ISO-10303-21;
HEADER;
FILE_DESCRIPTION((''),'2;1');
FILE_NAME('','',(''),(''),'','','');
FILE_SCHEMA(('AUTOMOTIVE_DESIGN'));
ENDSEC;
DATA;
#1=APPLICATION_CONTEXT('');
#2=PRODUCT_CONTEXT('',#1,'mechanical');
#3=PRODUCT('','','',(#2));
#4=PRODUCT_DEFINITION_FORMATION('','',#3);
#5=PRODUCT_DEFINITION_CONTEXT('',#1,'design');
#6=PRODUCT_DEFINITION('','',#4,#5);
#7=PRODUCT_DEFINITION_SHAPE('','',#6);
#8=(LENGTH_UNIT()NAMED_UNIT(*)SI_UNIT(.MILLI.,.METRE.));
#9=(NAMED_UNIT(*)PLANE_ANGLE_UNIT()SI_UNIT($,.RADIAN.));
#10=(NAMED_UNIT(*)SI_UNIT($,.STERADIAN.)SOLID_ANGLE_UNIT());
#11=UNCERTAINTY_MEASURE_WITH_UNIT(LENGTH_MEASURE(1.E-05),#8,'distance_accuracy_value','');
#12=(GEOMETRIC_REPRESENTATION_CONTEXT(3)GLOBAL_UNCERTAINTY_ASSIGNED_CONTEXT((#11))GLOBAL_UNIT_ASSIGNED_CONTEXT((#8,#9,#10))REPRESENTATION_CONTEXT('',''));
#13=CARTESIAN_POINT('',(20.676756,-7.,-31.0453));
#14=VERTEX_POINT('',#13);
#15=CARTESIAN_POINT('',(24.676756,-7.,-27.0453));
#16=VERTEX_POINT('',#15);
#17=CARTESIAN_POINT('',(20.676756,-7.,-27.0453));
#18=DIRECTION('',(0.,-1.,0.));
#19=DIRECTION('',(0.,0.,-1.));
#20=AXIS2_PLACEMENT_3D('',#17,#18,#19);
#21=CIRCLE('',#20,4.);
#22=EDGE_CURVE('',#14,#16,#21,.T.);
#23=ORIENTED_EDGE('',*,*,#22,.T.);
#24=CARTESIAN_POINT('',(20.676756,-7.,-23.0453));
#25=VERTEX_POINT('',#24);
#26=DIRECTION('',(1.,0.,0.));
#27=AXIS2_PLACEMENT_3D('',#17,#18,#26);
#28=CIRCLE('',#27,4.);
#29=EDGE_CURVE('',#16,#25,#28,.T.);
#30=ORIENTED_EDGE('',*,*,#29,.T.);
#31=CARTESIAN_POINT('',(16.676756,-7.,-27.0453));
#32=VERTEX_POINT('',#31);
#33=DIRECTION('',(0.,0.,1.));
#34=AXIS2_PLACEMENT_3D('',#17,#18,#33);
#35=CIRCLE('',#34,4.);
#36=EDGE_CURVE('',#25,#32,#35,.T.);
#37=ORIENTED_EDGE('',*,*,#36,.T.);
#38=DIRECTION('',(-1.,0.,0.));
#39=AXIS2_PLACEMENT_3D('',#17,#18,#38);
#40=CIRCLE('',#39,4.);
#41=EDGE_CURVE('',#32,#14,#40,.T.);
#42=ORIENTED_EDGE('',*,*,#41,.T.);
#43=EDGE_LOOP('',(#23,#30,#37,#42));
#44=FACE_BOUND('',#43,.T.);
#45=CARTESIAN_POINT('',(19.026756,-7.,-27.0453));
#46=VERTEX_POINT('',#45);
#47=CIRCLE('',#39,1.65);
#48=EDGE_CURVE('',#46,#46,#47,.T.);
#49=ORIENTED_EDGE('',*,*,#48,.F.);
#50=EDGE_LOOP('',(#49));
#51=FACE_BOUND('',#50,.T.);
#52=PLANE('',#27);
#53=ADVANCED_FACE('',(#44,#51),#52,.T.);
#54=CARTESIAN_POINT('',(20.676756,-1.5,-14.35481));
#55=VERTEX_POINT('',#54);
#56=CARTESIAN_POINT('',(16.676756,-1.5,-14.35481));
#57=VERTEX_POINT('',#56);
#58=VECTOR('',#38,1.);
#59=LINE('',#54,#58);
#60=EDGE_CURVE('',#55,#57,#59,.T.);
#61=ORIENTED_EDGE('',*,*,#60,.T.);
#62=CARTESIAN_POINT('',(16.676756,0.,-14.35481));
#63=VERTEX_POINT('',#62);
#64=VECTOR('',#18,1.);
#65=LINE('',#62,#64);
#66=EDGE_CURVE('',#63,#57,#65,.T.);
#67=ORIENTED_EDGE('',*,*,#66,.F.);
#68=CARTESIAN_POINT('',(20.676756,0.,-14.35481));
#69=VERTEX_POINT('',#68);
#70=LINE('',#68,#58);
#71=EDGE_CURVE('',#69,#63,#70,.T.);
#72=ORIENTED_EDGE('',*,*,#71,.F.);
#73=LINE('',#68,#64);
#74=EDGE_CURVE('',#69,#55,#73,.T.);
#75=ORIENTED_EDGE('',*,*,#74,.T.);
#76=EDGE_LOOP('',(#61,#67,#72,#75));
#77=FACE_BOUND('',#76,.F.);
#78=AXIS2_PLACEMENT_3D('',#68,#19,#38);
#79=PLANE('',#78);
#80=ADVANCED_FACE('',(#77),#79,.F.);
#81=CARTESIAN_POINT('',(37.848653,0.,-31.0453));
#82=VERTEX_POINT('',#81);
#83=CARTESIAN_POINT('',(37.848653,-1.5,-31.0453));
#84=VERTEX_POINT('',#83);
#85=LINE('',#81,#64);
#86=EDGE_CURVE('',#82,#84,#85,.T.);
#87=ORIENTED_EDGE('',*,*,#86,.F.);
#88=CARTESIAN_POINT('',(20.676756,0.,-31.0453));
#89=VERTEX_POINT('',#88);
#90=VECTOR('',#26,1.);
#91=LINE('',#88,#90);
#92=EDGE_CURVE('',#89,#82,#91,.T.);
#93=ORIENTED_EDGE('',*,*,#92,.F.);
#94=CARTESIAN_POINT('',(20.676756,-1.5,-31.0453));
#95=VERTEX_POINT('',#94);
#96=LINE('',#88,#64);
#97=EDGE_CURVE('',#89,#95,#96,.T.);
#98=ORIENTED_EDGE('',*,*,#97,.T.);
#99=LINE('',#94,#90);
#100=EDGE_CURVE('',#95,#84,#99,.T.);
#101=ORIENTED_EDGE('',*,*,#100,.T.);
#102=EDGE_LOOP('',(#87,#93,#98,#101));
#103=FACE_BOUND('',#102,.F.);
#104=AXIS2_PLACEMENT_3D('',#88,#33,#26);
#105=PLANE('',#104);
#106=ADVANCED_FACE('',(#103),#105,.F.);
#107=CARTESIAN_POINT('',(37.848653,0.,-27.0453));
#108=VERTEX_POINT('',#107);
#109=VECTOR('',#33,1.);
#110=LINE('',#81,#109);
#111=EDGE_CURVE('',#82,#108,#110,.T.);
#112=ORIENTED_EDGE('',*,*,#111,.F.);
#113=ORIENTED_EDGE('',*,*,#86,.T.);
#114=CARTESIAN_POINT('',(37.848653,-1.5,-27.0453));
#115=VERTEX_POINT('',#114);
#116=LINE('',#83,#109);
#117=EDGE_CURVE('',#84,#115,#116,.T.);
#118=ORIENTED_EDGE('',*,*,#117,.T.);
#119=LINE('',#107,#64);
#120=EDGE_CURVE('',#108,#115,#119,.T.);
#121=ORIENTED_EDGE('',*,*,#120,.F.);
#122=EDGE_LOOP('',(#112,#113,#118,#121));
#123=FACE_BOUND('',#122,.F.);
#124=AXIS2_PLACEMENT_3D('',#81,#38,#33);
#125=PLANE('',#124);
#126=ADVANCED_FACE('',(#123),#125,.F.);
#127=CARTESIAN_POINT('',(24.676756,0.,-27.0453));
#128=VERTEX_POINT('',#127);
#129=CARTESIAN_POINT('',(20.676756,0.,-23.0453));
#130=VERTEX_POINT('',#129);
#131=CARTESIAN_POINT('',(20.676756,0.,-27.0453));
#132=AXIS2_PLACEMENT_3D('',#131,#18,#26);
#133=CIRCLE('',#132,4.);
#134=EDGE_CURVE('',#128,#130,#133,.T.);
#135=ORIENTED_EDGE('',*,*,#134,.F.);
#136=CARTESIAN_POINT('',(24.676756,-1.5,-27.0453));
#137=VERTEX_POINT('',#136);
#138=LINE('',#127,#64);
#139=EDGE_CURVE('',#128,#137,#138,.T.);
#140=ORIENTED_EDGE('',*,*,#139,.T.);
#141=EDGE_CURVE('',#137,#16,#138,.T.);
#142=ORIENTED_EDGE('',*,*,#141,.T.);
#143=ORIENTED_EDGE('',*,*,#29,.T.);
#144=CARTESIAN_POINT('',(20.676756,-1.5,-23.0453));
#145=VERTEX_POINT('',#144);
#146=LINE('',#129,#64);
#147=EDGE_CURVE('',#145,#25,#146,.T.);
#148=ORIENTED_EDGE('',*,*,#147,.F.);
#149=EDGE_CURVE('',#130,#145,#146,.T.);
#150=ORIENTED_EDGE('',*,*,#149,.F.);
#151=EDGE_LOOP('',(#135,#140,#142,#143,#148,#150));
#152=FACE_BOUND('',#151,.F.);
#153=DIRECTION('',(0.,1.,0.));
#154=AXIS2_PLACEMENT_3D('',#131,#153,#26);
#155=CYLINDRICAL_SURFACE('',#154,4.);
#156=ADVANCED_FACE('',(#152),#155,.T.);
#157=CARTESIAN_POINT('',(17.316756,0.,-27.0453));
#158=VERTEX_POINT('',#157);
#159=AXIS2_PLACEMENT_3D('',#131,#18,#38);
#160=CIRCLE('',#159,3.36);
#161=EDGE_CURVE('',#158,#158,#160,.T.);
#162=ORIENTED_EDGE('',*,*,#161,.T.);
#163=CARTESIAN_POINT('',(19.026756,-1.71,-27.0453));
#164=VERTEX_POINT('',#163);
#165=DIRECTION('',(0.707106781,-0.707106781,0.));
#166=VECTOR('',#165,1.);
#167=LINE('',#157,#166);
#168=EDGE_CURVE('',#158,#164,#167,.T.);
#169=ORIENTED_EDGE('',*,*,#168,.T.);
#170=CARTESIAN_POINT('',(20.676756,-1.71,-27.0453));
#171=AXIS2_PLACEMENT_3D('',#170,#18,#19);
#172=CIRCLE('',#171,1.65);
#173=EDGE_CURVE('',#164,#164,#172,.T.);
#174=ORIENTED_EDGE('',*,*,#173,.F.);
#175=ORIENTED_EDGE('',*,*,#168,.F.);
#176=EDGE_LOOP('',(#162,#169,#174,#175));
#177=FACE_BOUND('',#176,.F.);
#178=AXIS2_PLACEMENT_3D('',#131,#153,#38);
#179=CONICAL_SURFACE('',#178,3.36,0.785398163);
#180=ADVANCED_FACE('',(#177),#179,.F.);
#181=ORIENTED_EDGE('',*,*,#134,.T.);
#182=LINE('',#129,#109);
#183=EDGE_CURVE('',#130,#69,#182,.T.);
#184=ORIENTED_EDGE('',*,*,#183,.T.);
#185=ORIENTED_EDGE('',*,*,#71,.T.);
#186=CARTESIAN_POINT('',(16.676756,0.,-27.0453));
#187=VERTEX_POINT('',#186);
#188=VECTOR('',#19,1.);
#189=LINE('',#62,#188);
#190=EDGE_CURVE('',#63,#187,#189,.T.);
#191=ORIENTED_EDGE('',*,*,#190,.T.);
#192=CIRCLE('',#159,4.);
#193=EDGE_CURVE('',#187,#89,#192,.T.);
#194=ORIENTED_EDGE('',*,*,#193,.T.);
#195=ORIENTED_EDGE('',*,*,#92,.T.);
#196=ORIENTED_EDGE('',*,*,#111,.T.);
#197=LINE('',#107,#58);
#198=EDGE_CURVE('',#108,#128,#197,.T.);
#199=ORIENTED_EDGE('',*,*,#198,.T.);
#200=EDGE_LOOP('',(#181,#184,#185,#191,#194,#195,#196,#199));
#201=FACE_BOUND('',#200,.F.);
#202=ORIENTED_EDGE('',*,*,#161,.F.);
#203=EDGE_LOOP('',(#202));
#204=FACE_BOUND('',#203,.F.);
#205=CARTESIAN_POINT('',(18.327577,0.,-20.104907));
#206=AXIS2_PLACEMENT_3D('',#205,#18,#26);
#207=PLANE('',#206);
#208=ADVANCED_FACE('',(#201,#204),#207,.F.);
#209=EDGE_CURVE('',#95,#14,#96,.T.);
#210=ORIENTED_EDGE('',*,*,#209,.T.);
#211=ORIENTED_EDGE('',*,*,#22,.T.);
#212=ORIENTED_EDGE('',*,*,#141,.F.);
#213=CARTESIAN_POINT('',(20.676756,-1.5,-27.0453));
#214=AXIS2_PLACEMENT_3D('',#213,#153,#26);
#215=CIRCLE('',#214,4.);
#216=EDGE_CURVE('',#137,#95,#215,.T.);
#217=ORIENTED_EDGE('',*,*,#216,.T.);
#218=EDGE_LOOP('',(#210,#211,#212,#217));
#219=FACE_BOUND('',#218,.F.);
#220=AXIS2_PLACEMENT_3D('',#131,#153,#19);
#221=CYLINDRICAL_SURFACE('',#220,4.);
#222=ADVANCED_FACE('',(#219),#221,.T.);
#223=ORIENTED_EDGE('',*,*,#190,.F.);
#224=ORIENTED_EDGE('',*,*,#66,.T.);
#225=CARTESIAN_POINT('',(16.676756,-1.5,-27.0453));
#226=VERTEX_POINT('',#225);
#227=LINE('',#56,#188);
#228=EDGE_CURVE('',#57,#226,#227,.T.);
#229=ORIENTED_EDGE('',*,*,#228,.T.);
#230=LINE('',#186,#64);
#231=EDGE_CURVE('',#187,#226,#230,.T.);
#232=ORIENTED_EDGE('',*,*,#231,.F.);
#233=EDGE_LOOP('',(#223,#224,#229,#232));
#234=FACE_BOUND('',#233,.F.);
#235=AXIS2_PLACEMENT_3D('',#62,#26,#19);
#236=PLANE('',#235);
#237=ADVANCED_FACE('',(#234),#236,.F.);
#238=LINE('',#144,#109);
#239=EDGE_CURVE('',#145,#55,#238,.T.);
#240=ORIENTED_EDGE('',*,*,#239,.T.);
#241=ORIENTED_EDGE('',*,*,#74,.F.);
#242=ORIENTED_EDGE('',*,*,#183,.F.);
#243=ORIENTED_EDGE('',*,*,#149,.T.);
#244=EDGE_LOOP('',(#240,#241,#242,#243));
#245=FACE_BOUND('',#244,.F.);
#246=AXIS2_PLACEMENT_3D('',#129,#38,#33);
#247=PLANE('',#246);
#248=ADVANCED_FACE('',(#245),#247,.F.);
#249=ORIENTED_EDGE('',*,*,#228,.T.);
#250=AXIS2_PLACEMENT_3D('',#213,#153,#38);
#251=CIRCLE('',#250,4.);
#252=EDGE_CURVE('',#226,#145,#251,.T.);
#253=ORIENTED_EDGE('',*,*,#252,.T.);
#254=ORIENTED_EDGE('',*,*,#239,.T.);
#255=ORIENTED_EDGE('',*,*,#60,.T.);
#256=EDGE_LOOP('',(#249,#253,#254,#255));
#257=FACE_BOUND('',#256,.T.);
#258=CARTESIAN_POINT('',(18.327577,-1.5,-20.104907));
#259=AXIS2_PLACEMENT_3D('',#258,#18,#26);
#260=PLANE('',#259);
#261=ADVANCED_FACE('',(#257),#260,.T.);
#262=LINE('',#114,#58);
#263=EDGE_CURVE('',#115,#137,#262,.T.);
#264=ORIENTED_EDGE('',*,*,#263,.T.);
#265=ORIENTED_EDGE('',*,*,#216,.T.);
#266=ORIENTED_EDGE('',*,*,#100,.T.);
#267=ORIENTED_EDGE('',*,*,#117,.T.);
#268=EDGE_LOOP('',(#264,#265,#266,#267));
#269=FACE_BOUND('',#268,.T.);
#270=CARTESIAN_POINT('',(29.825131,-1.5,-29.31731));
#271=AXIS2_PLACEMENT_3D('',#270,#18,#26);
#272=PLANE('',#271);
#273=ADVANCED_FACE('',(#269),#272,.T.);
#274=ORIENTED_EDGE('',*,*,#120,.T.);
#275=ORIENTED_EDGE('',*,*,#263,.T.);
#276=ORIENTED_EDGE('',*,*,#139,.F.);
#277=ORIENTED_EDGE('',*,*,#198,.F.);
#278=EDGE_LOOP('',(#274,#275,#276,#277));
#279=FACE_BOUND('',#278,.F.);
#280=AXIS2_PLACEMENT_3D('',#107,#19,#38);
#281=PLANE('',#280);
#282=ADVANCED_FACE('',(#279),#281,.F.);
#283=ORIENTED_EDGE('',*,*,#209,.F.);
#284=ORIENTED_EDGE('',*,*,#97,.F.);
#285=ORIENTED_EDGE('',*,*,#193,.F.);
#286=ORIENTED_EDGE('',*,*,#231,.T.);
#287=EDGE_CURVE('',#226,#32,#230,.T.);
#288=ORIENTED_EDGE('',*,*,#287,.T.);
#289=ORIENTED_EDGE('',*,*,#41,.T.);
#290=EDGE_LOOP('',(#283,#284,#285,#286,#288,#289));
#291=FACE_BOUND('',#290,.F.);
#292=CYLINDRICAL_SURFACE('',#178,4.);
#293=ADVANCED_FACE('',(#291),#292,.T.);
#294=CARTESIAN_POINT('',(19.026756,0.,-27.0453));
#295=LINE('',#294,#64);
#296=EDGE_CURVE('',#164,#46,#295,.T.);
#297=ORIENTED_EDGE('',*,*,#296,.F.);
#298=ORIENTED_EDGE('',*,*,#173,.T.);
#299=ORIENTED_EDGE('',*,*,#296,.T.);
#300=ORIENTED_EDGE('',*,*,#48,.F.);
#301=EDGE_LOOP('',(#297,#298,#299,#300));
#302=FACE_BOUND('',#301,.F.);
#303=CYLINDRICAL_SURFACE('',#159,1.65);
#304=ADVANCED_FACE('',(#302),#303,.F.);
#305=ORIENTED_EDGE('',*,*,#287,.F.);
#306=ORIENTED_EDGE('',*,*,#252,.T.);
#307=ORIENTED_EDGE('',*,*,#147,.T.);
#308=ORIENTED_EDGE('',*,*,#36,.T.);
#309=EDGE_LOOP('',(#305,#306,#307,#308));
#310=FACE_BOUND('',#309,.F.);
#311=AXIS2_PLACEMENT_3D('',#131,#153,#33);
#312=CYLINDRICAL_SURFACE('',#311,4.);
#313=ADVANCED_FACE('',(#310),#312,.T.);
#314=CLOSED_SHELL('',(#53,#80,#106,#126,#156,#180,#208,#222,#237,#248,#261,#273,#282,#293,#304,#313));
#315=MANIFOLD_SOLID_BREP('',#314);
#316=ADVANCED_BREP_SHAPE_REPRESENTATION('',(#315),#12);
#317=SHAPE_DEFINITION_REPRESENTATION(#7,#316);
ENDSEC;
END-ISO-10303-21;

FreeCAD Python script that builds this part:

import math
import FreeCAD as App
import Part
import Sketcher

V = App.Vector

doc = App.newDocument("Part")
params = doc.addObject("Spreadsheet::Sheet", "Params")
for row, (alias, value) in enumerate([
    ("sketch1_radius", "4 mm"),
    ("pad1_length", "7 mm"),
    ("sketch2_diameter", "3.3 mm"),
    ("hole_diameter", "3.3 mm"),
    ("hole_csink_diameter", "6.72 mm"),
    ("sketch3_radius", "4 mm"),
    ("pad2_length", "1.5 mm"),
], start=1):
    params.set(f"A{row}", alias)
    params.set(f"B{row}", "=" + value)
    params.setAlias(f"B{row}", alias)

body = doc.addObject("PartDesign::Body", "Body")

# Sketch on XZ plane
sketch1 = doc.addObject("Sketcher::SketchObject", "Sketch")
body.addObject(sketch1)
sketch1.AttachmentSupport = (doc.XZ_Plane, [""])
sketch1.MapMode = "FlatFace"
sketch1.addGeometry(Part.ArcOfCircle(Part.Circle(V(20.7, -27, 0), V(0, 0, 1), 4), math.radians(-90), math.radians(0)), False)
sketch1.addGeometry(Part.ArcOfCircle(Part.Circle(V(20.7, -27, 0), V(0, 0, 1), 4), math.radians(0), math.radians(90)), False)
sketch1.addGeometry(Part.ArcOfCircle(Part.Circle(V(20.7, -27, 0), V(0, 0, 1), 4), math.radians(90), math.radians(180)), False)
sketch1.addGeometry(Part.ArcOfCircle(Part.Circle(V(20.7, -27, 0), V(0, 0, 1), 4), math.radians(180), math.radians(270)), False)
sketch1.addConstraint(Sketcher.Constraint("Tangent", 0, 2, 1, 1))
sketch1.addConstraint(Sketcher.Constraint("Tangent", 1, 2, 2, 1))
sketch1.addConstraint(Sketcher.Constraint("Tangent", 2, 2, 3, 1))
sketch1.addConstraint(Sketcher.Constraint("Tangent", 3, 2, 0, 1))
sketch1.addConstraint(Sketcher.Constraint("Equal", 0, 1))
sketch1.addConstraint(Sketcher.Constraint("Horizontal", 3, 3, 0, 2))
sketch1.addConstraint(Sketcher.Constraint("Horizontal", 0, 2, 2, 2))
sketch1.addConstraint(Sketcher.Constraint("Vertical", 3, 3, 1, 2))
sketch1.addConstraint(Sketcher.Constraint("Vertical", 1, 2, 3, 2))
sketch1.addConstraint(Sketcher.Constraint("Radius", 0, 4.0))
sketch1.addConstraint(Sketcher.Constraint("DistanceY", 0, 3, -1, 1, 27.0453))
sketch1.addConstraint(Sketcher.Constraint("DistanceX", -1, 1, 0, 3, 20.676756))
sketch1.setExpression("Constraints[9]", "Params.sketch1_radius")
pad1 = doc.addObject("PartDesign::Pad", "Pad")
body.addObject(pad1)
pad1.Profile = sketch1
pad1.setExpression("Length", "Params.pad1_length")

# Sketch on XZ plane
sketch2 = doc.addObject("Sketcher::SketchObject", "Sketch001")
body.addObject(sketch2)
sketch2.AttachmentSupport = (doc.XZ_Plane, [""])
sketch2.MapMode = "FlatFace"
sketch2.addGeometry(Part.Circle(V(20.7, -27, 0), V(0, 0, 1), 1.6), False)
sketch2.addConstraint(Sketcher.Constraint("Diameter", 0, 3.3))
sketch2.addConstraint(Sketcher.Constraint("DistanceY", 0, 3, -1, 1, 27.0453))
sketch2.addConstraint(Sketcher.Constraint("DistanceX", -1, 1, 0, 3, 20.676756))
sketch2.setExpression("Constraints[0]", "Params.sketch2_diameter")
doc.recompute()
hole = doc.addObject("PartDesign::Hole", "Hole")
body.addObject(hole)
hole.Profile = sketch2
hole.ThreadType = "None"
hole.setExpression("Diameter", "Params.hole_diameter")
hole.DepthType = "ThroughAll"
hole.HoleCutType = "Countersink"
hole.setExpression("HoleCutDiameter", "Params.hole_csink_diameter")
hole.HoleCutCountersinkAngle = 90
hole.Reversed = True

# Sketch on XZ plane
sketch3 = doc.addObject("Sketcher::SketchObject", "Sketch002")
body.addObject(sketch3)
sketch3.AttachmentSupport = (doc.XZ_Plane, [""])
sketch3.MapMode = "FlatFace"
sketch3.addGeometry(Part.ArcOfCircle(Part.Circle(V(20.7, -27, 0), V(0, 0, 1), 4), math.radians(90), math.radians(180)), False)
sketch3.addGeometry(Part.LineSegment(V(20.7, -23, 0), V(20.7, -14.4, 0)), False)
sketch3.addGeometry(Part.LineSegment(V(20.7, -14.4, 0), V(16.7, -14.4, 0)), False)
sketch3.addGeometry(Part.LineSegment(V(16.7, -14.4, 0), V(16.7, -27, 0)), False)
sketch3.addGeometry(Part.LineSegment(V(37.8, -27, 0), V(24.7, -27, 0)), False)
sketch3.addGeometry(Part.ArcOfCircle(Part.Circle(V(20.7, -27, 0), V(0, 0, 1), 4), math.radians(-90), math.radians(0)), False)
sketch3.addGeometry(Part.LineSegment(V(20.7, -31, 0), V(37.8, -31, 0)), False)
sketch3.addGeometry(Part.LineSegment(V(37.8, -31, 0), V(37.8, -27, 0)), False)
sketch3.addConstraint(Sketcher.Constraint("Coincident", 0, 1, 1, 1))
sketch3.addConstraint(Sketcher.Constraint("Coincident", 1, 2, 2, 1))
sketch3.addConstraint(Sketcher.Constraint("Coincident", 2, 2, 3, 1))
sketch3.addConstraint(Sketcher.Constraint("Tangent", 3, 2, 0, 2))
sketch3.addConstraint(Sketcher.Constraint("Coincident", 4, 2, 5, 2))
sketch3.addConstraint(Sketcher.Constraint("Tangent", 5, 1, 6, 1))
sketch3.addConstraint(Sketcher.Constraint("Coincident", 6, 2, 7, 1))
sketch3.addConstraint(Sketcher.Constraint("Coincident", 7, 2, 4, 1))
sketch3.addConstraint(Sketcher.Constraint("Vertical", 1))
sketch3.addConstraint(Sketcher.Constraint("Horizontal", 2))
sketch3.addConstraint(Sketcher.Constraint("Vertical", 3))
sketch3.addConstraint(Sketcher.Constraint("Horizontal", 4))
sketch3.addConstraint(Sketcher.Constraint("Horizontal", 6))
sketch3.addConstraint(Sketcher.Constraint("Vertical", 7))
sketch3.addConstraint(Sketcher.Constraint("Coincident", 5, 3, 0, 3))
sketch3.addConstraint(Sketcher.Constraint("Equal", 0, 5))
sketch3.addConstraint(Sketcher.Constraint("Horizontal", 3, 2, 4, 2))
sketch3.addConstraint(Sketcher.Constraint("Vertical", 5, 3, 0, 1))
sketch3.addConstraint(Sketcher.Constraint("Radius", 0, 4.0))
sketch3.addConstraint(Sketcher.Constraint("DistanceY", 1, 1, 1, 2, 8.69049))
sketch3.addConstraint(Sketcher.Constraint("DistanceY", 0, 3, -1, 1, 27.0453))
sketch3.addConstraint(Sketcher.Constraint("DistanceX", 4, 2, 4, 1, 13.171897))
sketch3.addConstraint(Sketcher.Constraint("DistanceX", -1, 1, 0, 3, 20.676756))
sketch3.setExpression("Constraints[18]", "Params.sketch3_radius")
pad2 = doc.addObject("PartDesign::Pad", "Pad001")
body.addObject(pad2)
pad2.Profile = sketch3
pad2.setExpression("Length", "Params.pad2_length")

doc.recompute()
